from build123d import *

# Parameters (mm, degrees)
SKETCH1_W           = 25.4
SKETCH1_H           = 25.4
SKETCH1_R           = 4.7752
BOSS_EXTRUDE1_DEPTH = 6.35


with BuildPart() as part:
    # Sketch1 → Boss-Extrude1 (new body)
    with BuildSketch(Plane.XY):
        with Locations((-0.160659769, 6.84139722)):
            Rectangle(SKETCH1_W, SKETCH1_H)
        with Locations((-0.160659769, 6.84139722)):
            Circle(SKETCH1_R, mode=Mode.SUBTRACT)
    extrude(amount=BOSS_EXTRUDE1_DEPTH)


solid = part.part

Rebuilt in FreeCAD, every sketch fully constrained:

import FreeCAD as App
import Part
import Sketcher
Q = App.Units.Quantity

doc = App.newDocument("Part")
body = doc.addObject("PartDesign::Body", "Body")

sketch1 = body.newObject("Sketcher::SketchObject", "Sketch")
sketch1.AttachmentSupport = (doc.getObject("XY_Plane"), [""])
sketch1.MapMode = "FlatFace"
sketch1.addGeometry([
    Part.LineSegment(App.Vector(-12.9, 19.5, 0), App.Vector(-12.9, -5.9, 0)),
    Part.LineSegment(App.Vector(-12.9, -5.9, 0), App.Vector(12.5, -5.9, 0)),
    Part.LineSegment(App.Vector(12.5, -5.9, 0), App.Vector(12.5, 19.5, 0)),
    Part.LineSegment(App.Vector(12.5, 19.5, 0), App.Vector(-12.9, 19.5, 0)),
    Part.Circle(App.Vector(-0.2, 6.8, 0), App.Vector(0, 0, 1), 4.8),
], False)
sketch1.addConstraint([
    Sketcher.Constraint("Coincident", 0, 2, 1, 1),
    Sketcher.Constraint("Coincident", 1, 2, 2, 1),
    Sketcher.Constraint("Coincident", 2, 2, 3, 1),
    Sketcher.Constraint("Coincident", 3, 2, 0, 1),
    Sketcher.Constraint("Vertical", 0),
    Sketcher.Constraint("Horizontal", 1),
    Sketcher.Constraint("Vertical", 2),
    Sketcher.Constraint("Horizontal", 3),
    Sketcher.Constraint("Equal", 3, 0),
    Sketcher.Constraint("DistanceX", 1, 1, 1, 2, Q("1 in")),
    Sketcher.Constraint("Diameter", 4, Q("0.376 in")),
    Sketcher.Constraint("DistanceX", 0, 2, 4, 3, Q("0.5 in")),
    Sketcher.Constraint("DistanceY", 0, 2, 4, 3, Q("0.5 in")),
    Sketcher.Constraint("DistanceX", 4, 3, -1, 1, Q("0.16066 mm")),
    Sketcher.Constraint("DistanceY", -1, 1, 4, 3, Q("6.841397 mm")),
])
pad1 = body.newObject("PartDesign::Pad", "Pad")
pad1.Profile = sketch1
pad1.Length = Q("0.25 in")

doc.recompute()
